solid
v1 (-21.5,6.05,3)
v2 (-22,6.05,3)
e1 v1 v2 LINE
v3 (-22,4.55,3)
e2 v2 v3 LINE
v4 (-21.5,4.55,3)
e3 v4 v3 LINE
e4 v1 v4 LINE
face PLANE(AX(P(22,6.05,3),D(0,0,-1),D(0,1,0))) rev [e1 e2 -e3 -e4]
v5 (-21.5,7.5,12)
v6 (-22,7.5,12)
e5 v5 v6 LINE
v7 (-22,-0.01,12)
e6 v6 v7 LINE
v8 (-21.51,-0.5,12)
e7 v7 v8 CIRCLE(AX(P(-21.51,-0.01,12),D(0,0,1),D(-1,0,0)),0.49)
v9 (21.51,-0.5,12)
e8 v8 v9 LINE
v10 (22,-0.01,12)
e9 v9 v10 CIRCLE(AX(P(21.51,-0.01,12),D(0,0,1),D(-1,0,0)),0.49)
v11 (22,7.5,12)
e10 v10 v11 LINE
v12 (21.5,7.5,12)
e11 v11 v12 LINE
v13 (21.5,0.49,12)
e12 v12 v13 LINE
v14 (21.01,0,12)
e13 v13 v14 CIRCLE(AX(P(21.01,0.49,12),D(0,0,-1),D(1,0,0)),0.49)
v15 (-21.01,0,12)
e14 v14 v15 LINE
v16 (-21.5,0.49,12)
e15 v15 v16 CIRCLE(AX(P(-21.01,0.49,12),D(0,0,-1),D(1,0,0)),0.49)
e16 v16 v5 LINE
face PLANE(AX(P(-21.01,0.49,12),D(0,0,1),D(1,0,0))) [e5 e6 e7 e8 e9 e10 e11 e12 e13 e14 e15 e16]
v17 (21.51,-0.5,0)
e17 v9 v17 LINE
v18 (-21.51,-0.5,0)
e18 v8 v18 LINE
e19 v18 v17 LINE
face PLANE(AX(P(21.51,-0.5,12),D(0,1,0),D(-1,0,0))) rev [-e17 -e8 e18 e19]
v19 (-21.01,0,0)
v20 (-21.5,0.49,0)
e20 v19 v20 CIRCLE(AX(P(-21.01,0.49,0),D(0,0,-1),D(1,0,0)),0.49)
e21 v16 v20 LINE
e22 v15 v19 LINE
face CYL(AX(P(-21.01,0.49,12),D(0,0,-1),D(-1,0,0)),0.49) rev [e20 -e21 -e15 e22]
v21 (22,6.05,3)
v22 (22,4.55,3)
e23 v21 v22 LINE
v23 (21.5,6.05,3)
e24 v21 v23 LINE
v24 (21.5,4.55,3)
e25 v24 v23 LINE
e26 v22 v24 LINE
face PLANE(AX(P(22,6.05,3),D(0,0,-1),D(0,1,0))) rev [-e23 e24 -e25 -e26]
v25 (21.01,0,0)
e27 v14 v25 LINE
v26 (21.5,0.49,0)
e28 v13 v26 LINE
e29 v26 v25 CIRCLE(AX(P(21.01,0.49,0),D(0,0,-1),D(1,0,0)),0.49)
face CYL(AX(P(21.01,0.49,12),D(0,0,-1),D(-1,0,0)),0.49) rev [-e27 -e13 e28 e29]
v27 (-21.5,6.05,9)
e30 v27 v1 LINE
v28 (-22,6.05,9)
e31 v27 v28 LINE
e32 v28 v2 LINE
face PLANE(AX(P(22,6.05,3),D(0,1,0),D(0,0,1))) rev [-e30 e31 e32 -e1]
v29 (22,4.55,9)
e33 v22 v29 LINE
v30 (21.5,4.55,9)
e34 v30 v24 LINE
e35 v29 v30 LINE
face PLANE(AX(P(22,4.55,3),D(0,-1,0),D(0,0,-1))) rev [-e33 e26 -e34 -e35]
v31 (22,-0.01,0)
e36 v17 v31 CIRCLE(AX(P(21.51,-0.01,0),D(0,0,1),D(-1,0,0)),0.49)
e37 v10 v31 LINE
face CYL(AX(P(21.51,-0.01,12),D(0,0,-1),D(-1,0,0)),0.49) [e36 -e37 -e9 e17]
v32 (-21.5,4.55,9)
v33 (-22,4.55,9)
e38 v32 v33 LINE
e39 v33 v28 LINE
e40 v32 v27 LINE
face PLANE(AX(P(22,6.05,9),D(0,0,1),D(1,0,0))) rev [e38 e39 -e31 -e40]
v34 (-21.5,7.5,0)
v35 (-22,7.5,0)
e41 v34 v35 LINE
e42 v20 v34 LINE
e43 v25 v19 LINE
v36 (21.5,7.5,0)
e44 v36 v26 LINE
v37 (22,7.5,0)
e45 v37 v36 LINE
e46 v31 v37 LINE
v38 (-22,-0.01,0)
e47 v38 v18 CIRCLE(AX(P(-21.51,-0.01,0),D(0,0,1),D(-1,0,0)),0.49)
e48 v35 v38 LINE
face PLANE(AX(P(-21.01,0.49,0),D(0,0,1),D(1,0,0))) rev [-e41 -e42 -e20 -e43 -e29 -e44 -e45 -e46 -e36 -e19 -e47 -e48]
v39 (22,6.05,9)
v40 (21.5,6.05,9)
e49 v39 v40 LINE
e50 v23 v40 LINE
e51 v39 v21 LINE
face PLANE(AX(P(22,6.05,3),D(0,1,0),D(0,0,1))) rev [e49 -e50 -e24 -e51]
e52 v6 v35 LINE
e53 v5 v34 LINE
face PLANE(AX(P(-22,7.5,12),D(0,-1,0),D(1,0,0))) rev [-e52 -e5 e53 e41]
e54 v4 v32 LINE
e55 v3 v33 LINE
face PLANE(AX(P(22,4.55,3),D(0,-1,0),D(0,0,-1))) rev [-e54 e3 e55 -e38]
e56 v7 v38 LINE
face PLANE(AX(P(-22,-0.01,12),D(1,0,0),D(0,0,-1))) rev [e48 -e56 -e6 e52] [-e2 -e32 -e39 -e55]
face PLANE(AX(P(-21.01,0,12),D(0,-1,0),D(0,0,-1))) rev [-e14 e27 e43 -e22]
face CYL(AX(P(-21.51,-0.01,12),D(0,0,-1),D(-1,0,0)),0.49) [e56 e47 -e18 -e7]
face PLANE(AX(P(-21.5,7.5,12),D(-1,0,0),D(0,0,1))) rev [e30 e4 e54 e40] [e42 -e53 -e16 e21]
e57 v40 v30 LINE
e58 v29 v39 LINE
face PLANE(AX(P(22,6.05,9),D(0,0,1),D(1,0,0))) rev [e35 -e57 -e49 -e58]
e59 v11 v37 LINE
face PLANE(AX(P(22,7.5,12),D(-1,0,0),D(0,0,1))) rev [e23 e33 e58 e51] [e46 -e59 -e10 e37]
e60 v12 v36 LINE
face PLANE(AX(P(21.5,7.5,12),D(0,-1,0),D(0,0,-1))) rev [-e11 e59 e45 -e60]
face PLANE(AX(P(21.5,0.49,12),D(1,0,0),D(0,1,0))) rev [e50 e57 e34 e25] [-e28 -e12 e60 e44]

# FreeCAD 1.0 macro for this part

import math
import FreeCAD as App
import Part
import Sketcher

V = App.Vector
Q = App.Units.Quantity

doc = App.newDocument("Part")
body = doc.addObject("PartDesign::Body", "Body")

# Sketch on XY plane
sketch1 = body.newObject("Sketcher::SketchObject", "Sketch")
sketch1.AttachmentSupport = (doc.getObject("XY_Plane"), [""])
sketch1.MapMode = "FlatFace"
sketch1.addGeometry([
    Part.LineSegment(V(-21.5, 0.49, 0), V(-21.5, 7.5, 0)),  # 0
    Part.LineSegment(V(-21.5, 7.5, 0), V(-22, 7.5, 0)),  # 1
    Part.LineSegment(V(-22, 7.5, 0), V(-22, -0.01, 0)),  # 2
    Part.ArcOfCircle(Part.Circle(V(-21.51, -0.01, 0), V(0, 0, 1), 0.49), math.radians(180), math.radians(270)),  # 3
    Part.LineSegment(V(-21.51, -0.5, 0), V(21.51, -0.5, 0)),  # 4
    Part.ArcOfCircle(Part.Circle(V(21.51, -0.01, 0), V(0, 0, 1), 0.49), math.radians(-90), math.radians(0)),  # 5
    Part.LineSegment(V(22, -0.01, 0), V(22, 7.5, 0)),  # 6
    Part.LineSegment(V(22, 7.5, 0), V(21.5, 7.5, 0)),  # 7
    Part.LineSegment(V(21.5, 7.5, 0), V(21.5, 0.49, 0)),  # 8
    Part.ArcOfCircle(Part.Circle(V(21.01, 0.49, 0), V(0, 0, 1), 0.49), math.radians(-90), math.radians(0)),  # 9
    Part.LineSegment(V(21.01, 0, 0), V(-21.01, 0, 0)),  # 10
    Part.ArcOfCircle(Part.Circle(V(-21.01, 0.49, 0), V(0, 0, 1), 0.49), math.radians(180), math.radians(270)),  # 11
], False)
sketch1.addConstraint([
    Sketcher.Constraint("Coincident", 0, 2, 1, 1),
    Sketcher.Constraint("Coincident", 1, 2, 2, 1),
    Sketcher.Constraint("Tangent", 2, 2, 3, 1),
    Sketcher.Constraint("Tangent", 3, 2, 4, 1),
    Sketcher.Constraint("Tangent", 4, 2, 5, 1),
    Sketcher.Constraint("Tangent", 5, 2, 6, 1),
    Sketcher.Constraint("Coincident", 6, 2, 7, 1),
    Sketcher.Constraint("Coincident", 7, 2, 8, 1),
    Sketcher.Constraint("Tangent", 8, 2, 9, 2),
    Sketcher.Constraint("Tangent", 9, 1, 10, 1),
    Sketcher.Constraint("Tangent", 10, 2, 11, 2),
    Sketcher.Constraint("Tangent", 11, 1, 0, 1),
    Sketcher.Constraint("Vertical", 0),
    Sketcher.Constraint("Horizontal", 1),
    Sketcher.Constraint("Vertical", 2),
    Sketcher.Constraint("Horizontal", 4),
    Sketcher.Constraint("Vertical", 6),
    Sketcher.Constraint("Horizontal", 7),
    Sketcher.Constraint("Vertical", 8),
    Sketcher.Constraint("Horizontal", 10),
    Sketcher.Constraint("Equal", 3, 5),
    Sketcher.Constraint("Equal", 5, 9),
    Sketcher.Constraint("Equal", 9, 11),
    Sketcher.Constraint("Symmetric", 9, 1, 10, 2, -1, 1),
    Sketcher.Constraint("Symmetric", 1, 2, 6, 2, -2),
    Sketcher.Constraint("Radius", 3, Q("0.49 mm")),
    Sketcher.Constraint("DistanceX", 1, 2, 1, 1, Q("0.5 mm")),
    Sketcher.Constraint("DistanceX", 1, 2, -1, 1, Q("22 mm")),
    Sketcher.Constraint("DistanceY", 3, 2, 0, 2, Q("8 mm")),
    Sketcher.Constraint("DistanceY", 0, 1, 0, 2, Q("7.01 mm")),
])
pad1 = body.newObject("PartDesign::Pad", "Pad")
pad1.Profile = sketch1
pad1.Length = 12

# Sketch on YZ plane
sketch2 = body.newObject("Sketcher::SketchObject", "Sketch001")
sketch2.AttachmentSupport = (doc.getObject("YZ_Plane"), [""])
sketch2.MapMode = "FlatFace"
sketch2.AttachmentOffset = App.Placement(V(0, 0, -22), App.Rotation())
sketch2.addGeometry([
    Part.LineSegment(V(6.05, 3, 0), V(4.55, 3, 0)),
    Part.LineSegment(V(4.55, 3, 0), V(4.55, 9, 0)),
    Part.LineSegment(V(4.55, 9, 0), V(6.05, 9, 0)),
    Part.LineSegment(V(6.05, 9, 0), V(6.05, 3, 0)),
], False)
sketch2.addConstraint([
    Sketcher.Constraint("Coincident", 0, 2, 1, 1),
    Sketcher.Constraint("Coincident", 1, 2, 2, 1),
    Sketcher.Constraint("Coincident", 2, 2, 3, 1),
    Sketcher.Constraint("Coincident", 3, 2, 0, 1),
    Sketcher.Constraint("Horizontal", 0),
    Sketcher.Constraint("Vertical", 1),
    Sketcher.Constraint("Horizontal", 2),
    Sketcher.Constraint("Vertical", 3),
    Sketcher.Constraint("DistanceY", 1, 1, 1, 2, Q("6 mm")),
    Sketcher.Constraint("DistanceX", 0, 2, 0, 1, Q("1.5 mm")),
    Sketcher.Constraint("DistanceY", -1, 1, 0, 2, Q("3 mm")),
    Sketcher.Constraint("DistanceX", -1, 1, 0, 2, Q("4.55 mm")),
])
pocket1 = body.newObject("PartDesign::Pocket", "Pocket")
pocket1.Profile = sketch2
pocket1.Type = "ThroughAll"
pocket1.Reversed = True

doc.recompute()
